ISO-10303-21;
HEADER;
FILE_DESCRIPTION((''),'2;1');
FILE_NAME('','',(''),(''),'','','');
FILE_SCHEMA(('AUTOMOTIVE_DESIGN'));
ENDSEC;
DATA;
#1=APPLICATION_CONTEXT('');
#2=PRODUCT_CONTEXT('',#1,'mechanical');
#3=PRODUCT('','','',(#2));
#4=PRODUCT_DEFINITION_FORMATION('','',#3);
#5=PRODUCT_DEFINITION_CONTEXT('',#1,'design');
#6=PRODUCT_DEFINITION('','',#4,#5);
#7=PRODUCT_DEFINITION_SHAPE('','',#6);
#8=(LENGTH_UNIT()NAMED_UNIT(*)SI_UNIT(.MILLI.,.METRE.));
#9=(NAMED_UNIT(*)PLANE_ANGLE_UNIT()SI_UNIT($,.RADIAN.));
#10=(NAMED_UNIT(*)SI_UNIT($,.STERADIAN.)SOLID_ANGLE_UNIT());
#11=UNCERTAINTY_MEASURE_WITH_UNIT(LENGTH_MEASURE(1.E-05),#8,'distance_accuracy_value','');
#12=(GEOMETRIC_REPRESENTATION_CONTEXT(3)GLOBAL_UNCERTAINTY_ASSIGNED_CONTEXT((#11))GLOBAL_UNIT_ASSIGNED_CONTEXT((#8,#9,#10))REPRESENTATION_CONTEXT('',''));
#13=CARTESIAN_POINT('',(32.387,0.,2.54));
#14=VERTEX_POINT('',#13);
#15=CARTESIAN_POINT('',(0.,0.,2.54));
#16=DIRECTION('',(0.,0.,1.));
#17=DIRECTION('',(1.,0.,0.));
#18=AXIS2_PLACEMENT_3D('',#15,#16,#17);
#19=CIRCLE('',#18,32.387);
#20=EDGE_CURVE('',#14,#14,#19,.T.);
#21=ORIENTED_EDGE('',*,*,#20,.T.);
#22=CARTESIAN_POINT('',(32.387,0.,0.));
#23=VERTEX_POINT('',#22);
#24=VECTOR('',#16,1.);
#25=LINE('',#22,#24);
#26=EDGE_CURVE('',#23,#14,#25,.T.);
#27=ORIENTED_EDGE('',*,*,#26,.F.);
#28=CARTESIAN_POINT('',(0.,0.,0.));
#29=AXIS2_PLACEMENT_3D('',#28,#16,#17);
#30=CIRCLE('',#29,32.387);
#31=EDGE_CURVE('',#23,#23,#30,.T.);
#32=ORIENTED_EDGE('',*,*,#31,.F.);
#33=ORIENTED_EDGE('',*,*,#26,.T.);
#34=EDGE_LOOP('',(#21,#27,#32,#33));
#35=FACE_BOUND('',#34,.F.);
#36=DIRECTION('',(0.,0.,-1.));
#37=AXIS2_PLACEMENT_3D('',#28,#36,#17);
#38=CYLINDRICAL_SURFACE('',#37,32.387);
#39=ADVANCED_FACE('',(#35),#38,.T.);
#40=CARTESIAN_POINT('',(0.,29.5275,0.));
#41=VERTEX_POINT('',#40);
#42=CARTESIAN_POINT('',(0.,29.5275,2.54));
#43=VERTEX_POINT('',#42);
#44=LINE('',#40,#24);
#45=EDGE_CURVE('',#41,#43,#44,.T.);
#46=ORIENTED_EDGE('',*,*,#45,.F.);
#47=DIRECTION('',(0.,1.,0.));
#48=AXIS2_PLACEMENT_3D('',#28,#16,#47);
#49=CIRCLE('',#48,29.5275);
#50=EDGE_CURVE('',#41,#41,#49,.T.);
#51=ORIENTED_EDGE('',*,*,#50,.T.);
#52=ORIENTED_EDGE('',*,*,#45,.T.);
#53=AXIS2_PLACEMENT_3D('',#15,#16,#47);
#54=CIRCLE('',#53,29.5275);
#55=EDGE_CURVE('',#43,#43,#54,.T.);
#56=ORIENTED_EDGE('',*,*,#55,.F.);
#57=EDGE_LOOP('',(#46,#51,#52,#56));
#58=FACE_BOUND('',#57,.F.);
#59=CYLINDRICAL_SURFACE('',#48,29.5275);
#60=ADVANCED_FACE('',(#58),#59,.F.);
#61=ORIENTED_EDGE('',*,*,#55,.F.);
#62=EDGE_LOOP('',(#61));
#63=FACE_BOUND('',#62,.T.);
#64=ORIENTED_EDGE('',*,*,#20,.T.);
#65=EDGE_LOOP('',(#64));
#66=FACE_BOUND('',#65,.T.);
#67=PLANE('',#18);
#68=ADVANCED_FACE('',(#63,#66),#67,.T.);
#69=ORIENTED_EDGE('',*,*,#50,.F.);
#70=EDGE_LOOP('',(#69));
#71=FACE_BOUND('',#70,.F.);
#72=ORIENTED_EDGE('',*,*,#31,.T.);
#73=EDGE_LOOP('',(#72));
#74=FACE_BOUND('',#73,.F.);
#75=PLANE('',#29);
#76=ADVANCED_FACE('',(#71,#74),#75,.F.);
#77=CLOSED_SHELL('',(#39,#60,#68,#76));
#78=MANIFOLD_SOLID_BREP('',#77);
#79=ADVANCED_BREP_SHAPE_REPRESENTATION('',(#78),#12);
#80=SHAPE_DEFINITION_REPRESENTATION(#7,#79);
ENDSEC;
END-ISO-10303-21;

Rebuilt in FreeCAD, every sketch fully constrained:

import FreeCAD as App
import Part
import Sketcher
Q = App.Units.Quantity

doc = App.newDocument("Part")
body = doc.addObject("PartDesign::Body", "Body")

sketch1 = body.newObject("Sketcher::SketchObject", "Sketch")
sketch1.AttachmentSupport = (doc.getObject("XY_Plane"), [""])
sketch1.MapMode = "FlatFace"
sketch1.addGeometry(Part.Circle(App.Vector(0, 0, 0), App.Vector(0, 0, 1), 32.387), False)
sketch1.addConstraint([
    Sketcher.Constraint("Coincident", 0, 3, -1, 1),
    Sketcher.Constraint("Diameter", 0, 64.774),
])
pad1 = body.newObject("PartDesign::Pad", "Pad")
pad1.Profile = sketch1
pad1.Length = Q("0.1 in")

sketch2 = body.newObject("Sketcher::SketchObject", "Sketch001")
sketch2.AttachmentSupport = (doc.getObject("XY_Plane"), [""])
sketch2.MapMode = "FlatFace"
sketch2.addGeometry([
    Part.Circle(App.Vector(0, 0, 0), App.Vector(0, 0, 1), 29.5275),
    Part.Circle(App.Vector(0, 0, 0), App.Vector(0, 0, 1), 29.5275),
], False)
sketch2.addConstraint([
    Sketcher.Constraint("Coincident", 0, 3, -1, 1),
    Sketcher.Constraint("Coincident", 1, 3, -1, 1),
    Sketcher.Constraint("Equal", 0, 1),
    Sketcher.Constraint("Diameter", 0, Q("2.325 in")),
])
doc.recompute()
hole = body.newObject("PartDesign::Hole", "Hole")
hole.Profile = sketch2
hole.ThreadType = "None"
hole.Diameter = Q("2.325 in")
hole.DepthType = "ThroughAll"
hole.Reversed = True

doc.recompute()
